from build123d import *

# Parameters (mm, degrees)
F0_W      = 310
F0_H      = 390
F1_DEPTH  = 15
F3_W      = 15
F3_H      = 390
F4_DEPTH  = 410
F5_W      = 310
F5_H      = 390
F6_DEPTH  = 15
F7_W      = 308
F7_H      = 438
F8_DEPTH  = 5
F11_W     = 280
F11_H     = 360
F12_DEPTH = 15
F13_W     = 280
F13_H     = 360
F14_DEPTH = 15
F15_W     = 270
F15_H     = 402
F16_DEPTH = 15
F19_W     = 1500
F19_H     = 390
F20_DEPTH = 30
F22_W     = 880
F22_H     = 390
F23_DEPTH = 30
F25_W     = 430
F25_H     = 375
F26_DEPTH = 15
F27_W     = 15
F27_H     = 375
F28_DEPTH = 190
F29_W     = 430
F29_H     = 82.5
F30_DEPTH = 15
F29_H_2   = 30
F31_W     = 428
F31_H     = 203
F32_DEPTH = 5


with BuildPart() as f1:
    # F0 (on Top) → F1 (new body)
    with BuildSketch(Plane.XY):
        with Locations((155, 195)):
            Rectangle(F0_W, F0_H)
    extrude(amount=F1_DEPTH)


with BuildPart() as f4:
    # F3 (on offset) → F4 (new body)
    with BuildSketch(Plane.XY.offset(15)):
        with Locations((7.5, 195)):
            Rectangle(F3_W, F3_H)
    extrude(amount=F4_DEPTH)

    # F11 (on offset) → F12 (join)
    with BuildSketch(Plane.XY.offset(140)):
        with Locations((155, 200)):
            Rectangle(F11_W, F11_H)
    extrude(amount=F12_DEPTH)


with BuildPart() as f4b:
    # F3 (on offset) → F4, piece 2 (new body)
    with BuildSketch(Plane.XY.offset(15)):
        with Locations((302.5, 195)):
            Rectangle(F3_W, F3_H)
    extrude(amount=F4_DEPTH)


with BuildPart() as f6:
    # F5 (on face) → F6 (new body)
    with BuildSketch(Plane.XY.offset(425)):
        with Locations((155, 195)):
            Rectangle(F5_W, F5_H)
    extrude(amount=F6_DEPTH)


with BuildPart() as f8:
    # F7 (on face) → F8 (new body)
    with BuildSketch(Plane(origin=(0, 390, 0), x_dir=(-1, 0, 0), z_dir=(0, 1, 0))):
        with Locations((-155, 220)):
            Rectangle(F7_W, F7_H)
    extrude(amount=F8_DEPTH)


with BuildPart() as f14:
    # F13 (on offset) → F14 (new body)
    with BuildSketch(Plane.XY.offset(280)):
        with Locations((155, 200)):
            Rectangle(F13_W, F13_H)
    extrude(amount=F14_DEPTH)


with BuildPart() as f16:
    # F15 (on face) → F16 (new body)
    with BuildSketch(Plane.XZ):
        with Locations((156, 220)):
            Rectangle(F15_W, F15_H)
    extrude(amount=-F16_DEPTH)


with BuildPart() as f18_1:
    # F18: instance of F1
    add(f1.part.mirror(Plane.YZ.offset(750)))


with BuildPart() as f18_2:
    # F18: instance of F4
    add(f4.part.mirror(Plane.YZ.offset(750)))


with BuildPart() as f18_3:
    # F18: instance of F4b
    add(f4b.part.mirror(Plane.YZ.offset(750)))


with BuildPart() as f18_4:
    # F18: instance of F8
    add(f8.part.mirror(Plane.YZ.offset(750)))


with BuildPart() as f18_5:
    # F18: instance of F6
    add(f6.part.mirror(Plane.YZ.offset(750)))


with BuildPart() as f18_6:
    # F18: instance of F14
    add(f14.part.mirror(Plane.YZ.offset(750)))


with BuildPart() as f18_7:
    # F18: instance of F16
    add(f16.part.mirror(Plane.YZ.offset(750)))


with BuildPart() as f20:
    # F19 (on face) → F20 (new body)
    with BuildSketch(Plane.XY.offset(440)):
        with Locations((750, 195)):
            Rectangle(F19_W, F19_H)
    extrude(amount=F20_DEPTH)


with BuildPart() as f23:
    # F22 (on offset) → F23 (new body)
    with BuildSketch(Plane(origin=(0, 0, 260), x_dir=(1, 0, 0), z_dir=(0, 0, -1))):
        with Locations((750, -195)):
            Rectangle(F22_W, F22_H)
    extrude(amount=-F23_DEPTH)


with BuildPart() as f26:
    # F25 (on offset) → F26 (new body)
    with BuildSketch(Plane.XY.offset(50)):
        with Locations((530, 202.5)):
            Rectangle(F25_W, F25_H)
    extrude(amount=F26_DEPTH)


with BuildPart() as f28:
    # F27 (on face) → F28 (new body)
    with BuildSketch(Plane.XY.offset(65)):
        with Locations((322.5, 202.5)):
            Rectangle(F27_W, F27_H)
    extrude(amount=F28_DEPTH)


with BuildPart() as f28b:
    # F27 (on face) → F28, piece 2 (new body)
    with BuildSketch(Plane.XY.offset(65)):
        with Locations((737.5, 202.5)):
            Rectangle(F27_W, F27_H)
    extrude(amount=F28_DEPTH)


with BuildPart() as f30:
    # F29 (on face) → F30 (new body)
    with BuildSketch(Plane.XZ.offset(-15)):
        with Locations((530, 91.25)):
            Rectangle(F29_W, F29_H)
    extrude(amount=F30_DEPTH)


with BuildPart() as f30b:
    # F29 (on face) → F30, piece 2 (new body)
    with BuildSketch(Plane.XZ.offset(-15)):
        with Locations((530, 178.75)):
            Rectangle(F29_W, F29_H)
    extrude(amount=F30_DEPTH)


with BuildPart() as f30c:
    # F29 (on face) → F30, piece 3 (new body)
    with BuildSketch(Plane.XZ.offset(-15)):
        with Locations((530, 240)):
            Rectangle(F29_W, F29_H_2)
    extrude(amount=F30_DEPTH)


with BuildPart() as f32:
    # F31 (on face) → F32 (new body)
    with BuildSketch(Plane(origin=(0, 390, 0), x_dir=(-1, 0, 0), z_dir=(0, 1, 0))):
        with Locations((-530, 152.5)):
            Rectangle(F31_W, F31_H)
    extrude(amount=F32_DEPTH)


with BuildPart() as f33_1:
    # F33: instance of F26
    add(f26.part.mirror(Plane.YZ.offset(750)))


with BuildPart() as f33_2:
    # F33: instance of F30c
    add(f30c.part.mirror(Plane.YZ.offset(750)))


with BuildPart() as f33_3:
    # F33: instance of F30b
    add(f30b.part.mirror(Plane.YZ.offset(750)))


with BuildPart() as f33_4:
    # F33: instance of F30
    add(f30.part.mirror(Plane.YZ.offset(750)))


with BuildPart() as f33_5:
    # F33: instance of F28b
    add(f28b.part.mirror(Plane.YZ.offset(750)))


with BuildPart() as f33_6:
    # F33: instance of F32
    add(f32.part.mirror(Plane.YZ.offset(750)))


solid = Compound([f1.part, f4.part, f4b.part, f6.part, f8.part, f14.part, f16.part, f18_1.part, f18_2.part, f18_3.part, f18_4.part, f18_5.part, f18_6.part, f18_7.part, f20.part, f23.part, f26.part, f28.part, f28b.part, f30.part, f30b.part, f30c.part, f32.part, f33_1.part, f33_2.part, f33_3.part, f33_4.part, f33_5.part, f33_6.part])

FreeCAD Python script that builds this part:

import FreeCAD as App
import Part
import Sketcher
from FreeCAD import Vector
Q = App.Units.Quantity

doc = App.newDocument("Part")
body = doc.addObject("PartDesign::Body", "Body")

# Sketch on XY plane
sketch1 = body.newObject("Sketcher::SketchObject", "Sketch")
sketch1.AttachmentSupport = (doc.getObject("XY_Plane"), [""])
sketch1.MapMode = "FlatFace"
sketch1.addGeometry(Part.LineSegment(Vector(0, 390, 0), Vector(0, 0, 0)), False)
sketch1.addGeometry(Part.LineSegment(Vector(0, 0, 0), Vector(310, 0, 0)), False)
sketch1.addGeometry(Part.LineSegment(Vector(310, 0, 0), Vector(310, 390, 0)), False)
sketch1.addGeometry(Part.LineSegment(Vector(310, 390, 0), Vector(0, 390, 0)), False)
sketch1.addConstraint(Sketcher.Constraint("Coincident", 0, 2, 1, 1))
sketch1.addConstraint(Sketcher.Constraint("Coincident", 1, 2, 2, 1))
sketch1.addConstraint(Sketcher.Constraint("Coincident", 2, 2, 3, 1))
sketch1.addConstraint(Sketcher.Constraint("Coincident", 3, 2, 0, 1))
sketch1.addConstraint(Sketcher.Constraint("Vertical", 0))
sketch1.addConstraint(Sketcher.Constraint("Horizontal", 1))
sketch1.addConstraint(Sketcher.Constraint("Vertical", 2))
sketch1.addConstraint(Sketcher.Constraint("Horizontal", 3))
sketch1.addConstraint(Sketcher.Constraint("Coincident", 0, 2, -1, 1))
sketch1.addConstraint(Sketcher.Constraint("DistanceX", 1, 1, 1, 2, Q("310 mm")))
sketch1.addConstraint(Sketcher.Constraint("DistanceY", 0, 2, 0, 1, Q("390 mm")))
pad1 = body.newObject("PartDesign::Pad", "Pad")
pad1.Profile = sketch1
pad1.Length = 15
body2 = doc.addObject("PartDesign::Body", "Body001")

# Sketch on XY plane
sketch2 = body2.newObject("Sketcher::SketchObject", "Sketch001")
sketch2.AttachmentSupport = (doc.getObject("XY_Plane001"), [""])
sketch2.MapMode = "FlatFace"
sketch2.AttachmentOffset = App.Placement(Vector(0, 0, 15), App.Rotation())
sketch2.addGeometry(Part.LineSegment(Vector(0, 390, 0), Vector(0, 0, 0)), False)
sketch2.addGeometry(Part.LineSegment(Vector(0, 0, 0), Vector(15, 0, 0)), False)
sketch2.addGeometry(Part.LineSegment(Vector(15, 0, 0), Vector(15, 390, 0)), False)
sketch2.addGeometry(Part.LineSegment(Vector(15, 390, 0), Vector(0, 390, 0)), False)
sketch2.addConstraint(Sketcher.Constraint("Coincident", 0, 2, 1, 1))
sketch2.addConstraint(Sketcher.Constraint("Coincident", 1, 2, 2, 1))
sketch2.addConstraint(Sketcher.Constraint("Coincident", 2, 2, 3, 1))
sketch2.addConstraint(Sketcher.Constraint("Coincident", 3, 2, 0, 1))
sketch2.addConstraint(Sketcher.Constraint("Vertical", 0))
sketch2.addConstraint(Sketcher.Constraint("Horizontal", 1))
sketch2.addConstraint(Sketcher.Constraint("Vertical", 2))
sketch2.addConstraint(Sketcher.Constraint("Horizontal", 3))
sketch2.addConstraint(Sketcher.Constraint("Coincident", 0, 2, -1, 1))
sketch2.addConstraint(Sketcher.Constraint("DistanceX", 1, 1, 1, 2, Q("15 mm")))
sketch2.addConstraint(Sketcher.Constraint("DistanceY", 0, 2, 0, 1, Q("390 mm")))
pad2 = body2.newObject("PartDesign::Pad", "Pad001")
pad2.Profile = sketch2
pad2.Length = 410

# Sketch on XY plane
sketch3 = body2.newObject("Sketcher::SketchObject", "Sketch002")
sketch3.AttachmentSupport = (doc.getObject("XY_Plane001"), [""])
sketch3.MapMode = "FlatFace"
sketch3.AttachmentOffset = App.Placement(Vector(0, 0, 140), App.Rotation())
sketch3.addGeometry(Part.LineSegment(Vector(15, 380, 0), Vector(15, 20, 0)), False)
sketch3.addGeometry(Part.LineSegment(Vector(15, 20, 0), Vector(295, 20, 0)), False)
sketch3.addGeometry(Part.LineSegment(Vector(295, 20, 0), Vector(295, 380, 0)), False)
sketch3.addGeometry(Part.LineSegment(Vector(295, 380, 0), Vector(15, 380, 0)), False)
sketch3.addConstraint(Sketcher.Constraint("Coincident", 0, 2, 1, 1))
sketch3.addConstraint(Sketcher.Constraint("Coincident", 1, 2, 2, 1))
sketch3.addConstraint(Sketcher.Constraint("Coincident", 2, 2, 3, 1))
sketch3.addConstraint(Sketcher.Constraint("Coincident", 3, 2, 0, 1))
sketch3.addConstraint(Sketcher.Constraint("Vertical", 0))
sketch3.addConstraint(Sketcher.Constraint("Horizontal", 1))
sketch3.addConstraint(Sketcher.Constraint("Vertical", 2))
sketch3.addConstraint(Sketcher.Constraint("Horizontal", 3))
sketch3.addConstraint(Sketcher.Constraint("DistanceX", 1, 1, 1, 2, Q("280 mm")))
sketch3.addConstraint(Sketcher.Constraint("DistanceY", 0, 2, 0, 1, Q("360 mm")))
sketch3.addConstraint(Sketcher.Constraint("DistanceX", -1, 1, 0, 2, Q("15 mm")))
sketch3.addConstraint(Sketcher.Constraint("DistanceY", -1, 1, 0, 2, Q("20 mm")))
pad3 = body2.newObject("PartDesign::Pad", "Pad002")
pad3.Profile = sketch3
pad3.Length = 15
body3 = doc.addObject("PartDesign::Body", "Body002")

# Sketch on XY plane
sketch4 = body3.newObject("Sketcher::SketchObject", "Sketch003")
sketch4.AttachmentSupport = (doc.getObject("XY_Plane002"), [""])
sketch4.MapMode = "FlatFace"
sketch4.AttachmentOffset = App.Placement(Vector(0, 0, 15), App.Rotation())
sketch4.addGeometry(Part.LineSegment(Vector(295, 390, 0), Vector(295, 0, 0)), False)
sketch4.addGeometry(Part.LineSegment(Vector(295, 0, 0), Vector(310, 0, 0)), False)
sketch4.addGeometry(Part.LineSegment(Vector(310, 0, 0), Vector(310, 390, 0)), False)
sketch4.addGeometry(Part.LineSegment(Vector(310, 390, 0), Vector(295, 390, 0)), False)
sketch4.addConstraint(Sketcher.Constraint("Coincident", 0, 2, 1, 1))
sketch4.addConstraint(Sketcher.Constraint("Coincident", 1, 2, 2, 1))
sketch4.addConstraint(Sketcher.Constraint("Coincident", 2, 2, 3, 1))
sketch4.addConstraint(Sketcher.Constraint("Coincident", 3, 2, 0, 1))
sketch4.addConstraint(Sketcher.Constraint("Vertical", 0))
sketch4.addConstraint(Sketcher.Constraint("Horizontal", 1))
sketch4.addConstraint(Sketcher.Constraint("Vertical", 2))
sketch4.addConstraint(Sketcher.Constraint("Horizontal", 3))
sketch4.addConstraint(Sketcher.Constraint("PointOnObject", 0, 2, -1))
sketch4.addConstraint(Sketcher.Constraint("DistanceX", 1, 1, 1, 2, Q("15 mm")))
sketch4.addConstraint(Sketcher.Constraint("DistanceY", 0, 2, 0, 1, Q("390 mm")))
sketch4.addConstraint(Sketcher.Constraint("DistanceX", -1, 1, 0, 2, Q("295 mm")))
pad4 = body3.newObject("PartDesign::Pad", "Pad003")
pad4.Profile = sketch4
pad4.Length = 410
body4 = doc.addObject("PartDesign::Body", "Body003")

# Sketch on XY plane
sketch5 = body4.newObject("Sketcher::SketchObject", "Sketch004")
sketch5.AttachmentSupport = (doc.getObject("XY_Plane003"), [""])
sketch5.MapMode = "FlatFace"
sketch5.AttachmentOffset = App.Placement(Vector(0, 0, 425), App.Rotation())
sketch5.addGeometry(Part.LineSegment(Vector(0, 390, 0), Vector(0, 0, 0)), False)
sketch5.addGeometry(Part.LineSegment(Vector(0, 0, 0), Vector(310, 0, 0)), False)
sketch5.addGeometry(Part.LineSegment(Vector(310, 0, 0), Vector(310, 390, 0)), False)
sketch5.addGeometry(Part.LineSegment(Vector(310, 390, 0), Vector(0, 390, 0)), False)
sketch5.addConstraint(Sketcher.Constraint("Coincident", 0, 2, 1, 1))
sketch5.addConstraint(Sketcher.Constraint("Coincident", 1, 2, 2, 1))
sketch5.addConstraint(Sketcher.Constraint("Coincident", 2, 2, 3, 1))
sketch5.addConstraint(Sketcher.Constraint("Coincident", 3, 2, 0, 1))
sketch5.addConstraint(Sketcher.Constraint("Vertical", 0))
sketch5.addConstraint(Sketcher.Constraint("Horizontal", 1))
sketch5.addConstraint(Sketcher.Constraint("Vertical", 2))
sketch5.addConstraint(Sketcher.Constraint("Horizontal", 3))
sketch5.addConstraint(Sketcher.Constraint("Coincident", 0, 2, -1, 1))
sketch5.addConstraint(Sketcher.Constraint("DistanceX", 1, 1, 1, 2, Q("310 mm")))
sketch5.addConstraint(Sketcher.Constraint("DistanceY", 0, 2, 0, 1, Q("390 mm")))
pad5 = body4.newObject("PartDesign::Pad", "Pad004")
pad5.Profile = sketch5
pad5.Length = 15
body5 = doc.addObject("PartDesign::Body", "Body004")

# Sketch on XZ plane
sketch6 = body5.newObject("Sketcher::SketchObject", "Sketch005")
sketch6.AttachmentSupport = (doc.getObject("XZ_Plane004"), [""])
sketch6.MapMode = "FlatFace"
sketch6.AttachmentOffset = App.Placement(Vector(0, 0, -390), App.Rotation())
sketch6.addGeometry(Part.LineSegment(Vector(309, 439, 0), Vector(309, 1, 0)), False)
sketch6.addGeometry(Part.LineSegment(Vector(309, 1, 0), Vector(1, 1, 0)), False)
sketch6.addGeometry(Part.LineSegment(Vector(1, 1, 0), Vector(1, 439, 0)), False)
sketch6.addGeometry(Part.LineSegment(Vector(1, 439, 0), Vector(309, 439, 0)), False)
sketch6.addConstraint(Sketcher.Constraint("Coincident", 0, 2, 1, 1))
sketch6.addConstraint(Sketcher.Constraint("Coincident", 1, 2, 2, 1))
sketch6.addConstraint(Sketcher.Constraint("Coincident", 2, 2, 3, 1))
sketch6.addConstraint(Sketcher.Constraint("Coincident", 3, 2, 0, 1))
sketch6.addConstraint(Sketcher.Constraint("Vertical", 0))
sketch6.addConstraint(Sketcher.Constraint("Horizontal", 1))
sketch6.addConstraint(Sketcher.Constraint("Vertical", 2))
sketch6.addConstraint(Sketcher.Constraint("Horizontal", 3))
sketch6.addConstraint(Sketcher.Constraint("DistanceX", 1, 2, 1, 1, Q("308 mm")))
sketch6.addConstraint(Sketcher.Constraint("DistanceY", 0, 2, 0, 1, Q("438 mm")))
sketch6.addConstraint(Sketcher.Constraint("DistanceX", -1, 1, 0, 2, Q("309 mm")))
sketch6.addConstraint(Sketcher.Constraint("DistanceY", -1, 1, 0, 2, Q("1 mm")))
pad6 = body5.newObject("PartDesign::Pad", "Pad005")
pad6.Profile = sketch6
pad6.Length = 5
pad6.Reversed = True
body6 = doc.addObject("PartDesign::Body", "Body005")

# Sketch on XY plane
sketch7 = body6.newObject("Sketcher::SketchObject", "Sketch006")
sketch7.AttachmentSupport = (doc.getObject("XY_Plane005"), [""])
sketch7.MapMode = "FlatFace"
sketch7.AttachmentOffset = App.Placement(Vector(0, 0, 280), App.Rotation())
sketch7.addGeometry(Part.LineSegment(Vector(15, 380, 0), Vector(15, 20, 0)), False)
sketch7.addGeometry(Part.LineSegment(Vector(15, 20, 0), Vector(295, 20, 0)), False)
sketch7.addGeometry(Part.LineSegment(Vector(295, 20, 0), Vector(295, 380, 0)), False)
sketch7.addGeometry(Part.LineSegment(Vector(295, 380, 0), Vector(15, 380, 0)), False)
sketch7.addConstraint(Sketcher.Constraint("Coincident", 0, 2, 1, 1))
sketch7.addConstraint(Sketcher.Constraint("Coincident", 1, 2, 2, 1))
sketch7.addConstraint(Sketcher.Constraint("Coincident", 2, 2, 3, 1))
sketch7.addConstraint(Sketcher.Constraint("Coincident", 3, 2, 0, 1))
sketch7.addConstraint(Sketcher.Constraint("Vertical", 0))
sketch7.addConstraint(Sketcher.Constraint("Horizontal", 1))
sketch7.addConstraint(Sketcher.Constraint("Vertical", 2))
sketch7.addConstraint(Sketcher.Constraint("Horizontal", 3))
sketch7.addConstraint(Sketcher.Constraint("DistanceX", 1, 1, 1, 2, Q("280 mm")))
sketch7.addConstraint(Sketcher.Constraint("DistanceY", 0, 2, 0, 1, Q("360 mm")))
sketch7.addConstraint(Sketcher.Constraint("DistanceX", -1, 1, 0, 2, Q("15 mm")))
sketch7.addConstraint(Sketcher.Constraint("DistanceY", -1, 1, 0, 2, Q("20 mm")))
pad7 = body6.newObject("PartDesign::Pad", "Pad006")
pad7.Profile = sketch7
pad7.Length = 15
body7 = doc.addObject("PartDesign::Body", "Body006")

# Sketch on XZ plane
sketch8 = body7.newObject("Sketcher::SketchObject", "Sketch007")
sketch8.AttachmentSupport = (doc.getObject("XZ_Plane006"), [""])
sketch8.MapMode = "FlatFace"
sketch8.addGeometry(Part.LineSegment(Vector(21, 421, 0), Vector(21, 19, 0)), False)
sketch8.addGeometry(Part.LineSegment(Vector(21, 19, 0), Vector(291, 19, 0)), False)
sketch8.addGeometry(Part.LineSegment(Vector(291, 19, 0), Vector(291, 421, 0)), False)
sketch8.addGeometry(Part.LineSegment(Vector(291, 421, 0), Vector(21, 421, 0)), False)
sketch8.addConstraint(Sketcher.Constraint("Coincident", 0, 2, 1, 1))
sketch8.addConstraint(Sketcher.Constraint("Coincident", 1, 2, 2, 1))
sketch8.addConstraint(Sketcher.Constraint("Coincident", 2, 2, 3, 1))
sketch8.addConstraint(Sketcher.Constraint("Coincident", 3, 2, 0, 1))
sketch8.addConstraint(Sketcher.Constraint("Vertical", 0))
sketch8.addConstraint(Sketcher.Constraint("Horizontal", 1))
sketch8.addConstraint(Sketcher.Constraint("Vertical", 2))
sketch8.addConstraint(Sketcher.Constraint("Horizontal", 3))
sketch8.addConstraint(Sketcher.Constraint("DistanceX", 1, 1, 1, 2, Q("270 mm")))
sketch8.addConstraint(Sketcher.Constraint("DistanceY", 0, 2, 0, 1, Q("402 mm")))
sketch8.addConstraint(Sketcher.Constraint("DistanceX", -1, 1, 0, 2, Q("21 mm")))
sketch8.addConstraint(Sketcher.Constraint("DistanceY", -1, 1, 0, 2, Q("19 mm")))
pad8 = body7.newObject("PartDesign::Pad", "Pad007")
pad8.Profile = sketch8
pad8.Length = 15
pad8.Reversed = True
body8 = doc.addObject("PartDesign::Body", "Body007")
doc.recompute()

mirroring = doc.addObject("Part::Mirroring", "Mirroring")
mirroring.Source = body
mirroring.Base = Vector(750, 0, 0)
mirroring.Normal = Vector(1, 0, 0)
body8.BaseFeature = mirroring
doc.recompute()
body9 = doc.addObject("PartDesign::Body", "Body008")
doc.recompute()

mirroring2 = doc.addObject("Part::Mirroring", "Mirroring001")
mirroring2.Source = body2
mirroring2.Base = Vector(750, 0, 0)
mirroring2.Normal = Vector(1, 0, 0)
body9.BaseFeature = mirroring2
doc.recompute()
body10 = doc.addObject("PartDesign::Body", "Body009")
doc.recompute()

mirroring3 = doc.addObject("Part::Mirroring", "Mirroring002")
mirroring3.Source = body3
mirroring3.Base = Vector(750, 0, 0)
mirroring3.Normal = Vector(1, 0, 0)
body10.BaseFeature = mirroring3
doc.recompute()
body11 = doc.addObject("PartDesign::Body", "Body010")
doc.recompute()

mirroring4 = doc.addObject("Part::Mirroring", "Mirroring003")
mirroring4.Source = body5
mirroring4.Base = Vector(750, 0, 0)
mirroring4.Normal = Vector(1, 0, 0)
body11.BaseFeature = mirroring4
doc.recompute()
body12 = doc.addObject("PartDesign::Body", "Body011")
doc.recompute()

mirroring5 = doc.addObject("Part::Mirroring", "Mirroring004")
mirroring5.Source = body4
mirroring5.Base = Vector(750, 0, 0)
mirroring5.Normal = Vector(1, 0, 0)
body12.BaseFeature = mirroring5
doc.recompute()
body13 = doc.addObject("PartDesign::Body", "Body012")
doc.recompute()

mirroring6 = doc.addObject("Part::Mirroring", "Mirroring005")
mirroring6.Source = body6
mirroring6.Base = Vector(750, 0, 0)
mirroring6.Normal = Vector(1, 0, 0)
body13.BaseFeature = mirroring6
doc.recompute()
body14 = doc.addObject("PartDesign::Body", "Body013")
doc.recompute()

mirroring7 = doc.addObject("Part::Mirroring", "Mirroring006")
mirroring7.Source = body7
mirroring7.Base = Vector(750, 0, 0)
mirroring7.Normal = Vector(1, 0, 0)
body14.BaseFeature = mirroring7
doc.recompute()
body15 = doc.addObject("PartDesign::Body", "Body014")

# Sketch on XY plane
sketch9 = body15.newObject("Sketcher::SketchObject", "Sketch008")
sketch9.AttachmentSupport = (doc.getObject("XY_Plane014"), [""])
sketch9.MapMode = "FlatFace"
sketch9.AttachmentOffset = App.Placement(Vector(0, 0, 440), App.Rotation())
sketch9.addGeometry(Part.LineSegment(Vector(0, 390, 0), Vector(0, 0, 0)), False)
sketch9.addGeometry(Part.LineSegment(Vector(0, 0, 0), Vector(1500, 0, 0)), False)
sketch9.addGeometry(Part.LineSegment(Vector(1500, 0, 0), Vector(1500, 390, 0)), False)
sketch9.addGeometry(Part.LineSegment(Vector(1500, 390, 0), Vector(0, 390, 0)), False)
sketch9.addConstraint(Sketcher.Constraint("Coincident", 0, 2, 1, 1))
sketch9.addConstraint(Sketcher.Constraint("Coincident", 1, 2, 2, 1))
sketch9.addConstraint(Sketcher.Constraint("Coincident", 2, 2, 3, 1))
sketch9.addConstraint(Sketcher.Constraint("Coincident", 3, 2, 0, 1))
sketch9.addConstraint(Sketcher.Constraint("Vertical", 0))
sketch9.addConstraint(Sketcher.Constraint("Horizontal", 1))
sketch9.addConstraint(Sketcher.Constraint("Vertical", 2))
sketch9.addConstraint(Sketcher.Constraint("Horizontal", 3))
sketch9.addConstraint(Sketcher.Constraint("Coincident", 0, 2, -1, 1))
sketch9.addConstraint(Sketcher.Constraint("DistanceX", 1, 1, 1, 2, Q("1500 mm")))
sketch9.addConstraint(Sketcher.Constraint("DistanceY", 0, 2, 0, 1, Q("390 mm")))
pad9 = body15.newObject("PartDesign::Pad", "Pad008")
pad9.Profile = sketch9
pad9.Length = 30
body16 = doc.addObject("PartDesign::Body", "Body015")

# Sketch on XY plane
sketch10 = body16.newObject("Sketcher::SketchObject", "Sketch009")
sketch10.AttachmentSupport = (doc.getObject("XY_Plane015"), [""])
sketch10.MapMode = "FlatFace"
sketch10.AttachmentOffset = App.Placement(Vector(0, 0, 260), App.Rotation())
sketch10.addGeometry(Part.LineSegment(Vector(310, 0, 0), Vector(310, 390, 0)), False)
sketch10.addGeometry(Part.LineSegment(Vector(310, 390, 0), Vector(1190, 390, 0)), False)
sketch10.addGeometry(Part.LineSegment(Vector(1190, 390, 0), Vector(1190, 0, 0)), False)
sketch10.addGeometry(Part.LineSegment(Vector(1190, 0, 0), Vector(310, 0, 0)), False)
sketch10.addConstraint(Sketcher.Constraint("Coincident", 0, 2, 1, 1))
sketch10.addConstraint(Sketcher.Constraint("Coincident", 1, 2, 2, 1))
sketch10.addConstraint(Sketcher.Constraint("Coincident", 2, 2, 3, 1))
sketch10.addConstraint(Sketcher.Constraint("Coincident", 3, 2, 0, 1))
sketch10.addConstraint(Sketcher.Constraint("Vertical", 0))
sketch10.addConstraint(Sketcher.Constraint("Horizontal", 1))
sketch10.addConstraint(Sketcher.Constraint("Vertical", 2))
sketch10.addConstraint(Sketcher.Constraint("Horizontal", 3))
sketch10.addConstraint(Sketcher.Constraint("PointOnObject", 2, 2, -1))
sketch10.addConstraint(Sketcher.Constraint("DistanceX", 1, 1, 1, 2, Q("880 mm")))
sketch10.addConstraint(Sketcher.Constraint("DistanceY", 0, 1, 0, 2, Q("390 mm")))
sketch10.addConstraint(Sketcher.Constraint("DistanceX", -1, 1, 0, 2, Q("310 mm")))
pad10 = body16.newObject("PartDesign::Pad", "Pad009")
pad10.Profile = sketch10
pad10.Length = 30
body17 = doc.addObject("PartDesign::Body", "Body016")

# Sketch on XY plane
sketch11 = body17.newObject("Sketcher::SketchObject", "Sketch010")
sketch11.AttachmentSupport = (doc.getObject("XY_Plane016"), [""])
sketch11.MapMode = "FlatFace"
sketch11.AttachmentOffset = App.Placement(Vector(0, 0, 50), App.Rotation())
sketch11.addGeometry(Part.LineSegment(Vector(315, 390, 0), Vector(315, 15, 0)), False)
sketch11.addGeometry(Part.LineSegment(Vector(315, 15, 0), Vector(745, 15, 0)), False)
sketch11.addGeometry(Part.LineSegment(Vector(745, 15, 0), Vector(745, 390, 0)), False)
sketch11.addGeometry(Part.LineSegment(Vector(745, 390, 0), Vector(315, 390, 0)), False)
sketch11.addConstraint(Sketcher.Constraint("Coincident", 0, 2, 1, 1))
sketch11.addConstraint(Sketcher.Constraint("Coincident", 1, 2, 2, 1))
sketch11.addConstraint(Sketcher.Constraint("Coincident", 2, 2, 3, 1))
sketch11.addConstraint(Sketcher.Constraint("Coincident", 3, 2, 0, 1))
sketch11.addConstraint(Sketcher.Constraint("Vertical", 0))
sketch11.addConstraint(Sketcher.Constraint("Horizontal", 1))
sketch11.addConstraint(Sketcher.Constraint("Vertical", 2))
sketch11.addConstraint(Sketcher.Constraint("Horizontal", 3))
sketch11.addConstraint(Sketcher.Constraint("DistanceX", 1, 1, 1, 2, Q("430 mm")))
sketch11.addConstraint(Sketcher.Constraint("DistanceY", 0, 2, 0, 1, Q("375 mm")))
sketch11.addConstraint(Sketcher.Constraint("DistanceX", -1, 1, 0, 2, Q("315 mm")))
sketch11.addConstraint(Sketcher.Constraint("DistanceY", -1, 1, 0, 2, Q("15 mm")))
pad11 = body17.newObject("PartDesign::Pad", "Pad010")
pad11.Profile = sketch11
pad11.Length = 15
body18 = doc.addObject("PartDesign::Body", "Body017")

# Sketch on XY plane
sketch12 = body18.newObject("Sketcher::SketchObject", "Sketch011")
sketch12.AttachmentSupport = (doc.getObject("XY_Plane017"), [""])
sketch12.MapMode = "FlatFace"
sketch12.AttachmentOffset = App.Placement(Vector(0, 0, 65), App.Rotation())
sketch12.addGeometry(Part.LineSegment(Vector(315, 390, 0), Vector(315, 15, 0)), False)
sketch12.addGeometry(Part.LineSegment(Vector(315, 15, 0), Vector(330, 15, 0)), False)
sketch12.addGeometry(Part.LineSegment(Vector(330, 15, 0), Vector(330, 390, 0)), False)
sketch12.addGeometry(Part.LineSegment(Vector(330, 390, 0), Vector(315, 390, 0)), False)
sketch12.addConstraint(Sketcher.Constraint("Coincident", 0, 2, 1, 1))
sketch12.addConstraint(Sketcher.Constraint("Coincident", 1, 2, 2, 1))
sketch12.addConstraint(Sketcher.Constraint("Coincident", 2, 2, 3, 1))
sketch12.addConstraint(Sketcher.Constraint("Coincident", 3, 2, 0, 1))
sketch12.addConstraint(Sketcher.Constraint("Vertical", 0))
sketch12.addConstraint(Sketcher.Constraint("Horizontal", 1))
sketch12.addConstraint(Sketcher.Constraint("Vertical", 2))
sketch12.addConstraint(Sketcher.Constraint("Horizontal", 3))
sketch12.addConstraint(Sketcher.Constraint("DistanceX", 1, 1, 1, 2, Q("15 mm")))
sketch12.addConstraint(Sketcher.Constraint("DistanceY", 0, 2, 0, 1, Q("375 mm")))
sketch12.addConstraint(Sketcher.Constraint("DistanceX", -1, 1, 0, 2, Q("315 mm")))
sketch12.addConstraint(Sketcher.Constraint("DistanceY", -1, 1, 0, 2, Q("15 mm")))
pad12 = body18.newObject("PartDesign::Pad", "Pad011")
pad12.Profile = sketch12
pad12.Length = 190
body19 = doc.addObject("PartDesign::Body", "Body018")

# Sketch on XY plane
sketch13 = body19.newObject("Sketcher::SketchObject", "Sketch012")
sketch13.AttachmentSupport = (doc.getObject("XY_Plane018"), [""])
sketch13.MapMode = "FlatFace"
sketch13.AttachmentOffset = App.Placement(Vector(0, 0, 65), App.Rotation())
sketch13.addGeometry(Part.LineSegment(Vector(730, 390, 0), Vector(730, 15, 0)), False)
sketch13.addGeometry(Part.LineSegment(Vector(730, 15, 0), Vector(745, 15, 0)), False)
sketch13.addGeometry(Part.LineSegment(Vector(745, 15, 0), Vector(745, 390, 0)), False)
sketch13.addGeometry(Part.LineSegment(Vector(745, 390, 0), Vector(730, 390, 0)), False)
sketch13.addConstraint(Sketcher.Constraint("Coincident", 0, 2, 1, 1))
sketch13.addConstraint(Sketcher.Constraint("Coincident", 1, 2, 2, 1))
sketch13.addConstraint(Sketcher.Constraint("Coincident", 2, 2, 3, 1))
sketch13.addConstraint(Sketcher.Constraint("Coincident", 3, 2, 0, 1))
sketch13.addConstraint(Sketcher.Constraint("Vertical", 0))
sketch13.addConstraint(Sketcher.Constraint("Horizontal", 1))
sketch13.addConstraint(Sketcher.Constraint("Vertical", 2))
sketch13.addConstraint(Sketcher.Constraint("Horizontal", 3))
sketch13.addConstraint(Sketcher.Constraint("DistanceX", 1, 1, 1, 2, Q("15 mm")))
sketch13.addConstraint(Sketcher.Constraint("DistanceY", 0, 2, 0, 1, Q("375 mm")))
sketch13.addConstraint(Sketcher.Constraint("DistanceX", -1, 1, 0, 2, Q("730 mm")))
sketch13.addConstraint(Sketcher.Constraint("DistanceY", -1, 1, 0, 2, Q("15 mm")))
pad13 = body19.newObject("PartDesign::Pad", "Pad012")
pad13.Profile = sketch13
pad13.Length = 190
body20 = doc.addObject("PartDesign::Body", "Body019")

# Sketch on XZ plane
sketch14 = body20.newObject("Sketcher::SketchObject", "Sketch013")
sketch14.AttachmentSupport = (doc.getObject("XZ_Plane019"), [""])
sketch14.MapMode = "FlatFace"
sketch14.AttachmentOffset = App.Placement(Vector(0, 0, -15), App.Rotation())
sketch14.addGeometry(Part.LineSegment(Vector(315, 132, 0), Vector(315, 50, 0)), False)
sketch14.addGeometry(Part.LineSegment(Vector(315, 50, 0), Vector(745, 50, 0)), False)
sketch14.addGeometry(Part.LineSegment(Vector(745, 50, 0), Vector(745, 132, 0)), False)
sketch14.addGeometry(Part.LineSegment(Vector(745, 132, 0), Vector(315, 132, 0)), False)
sketch14.addConstraint(Sketcher.Constraint("Coincident", 0, 2, 1, 1))
sketch14.addConstraint(Sketcher.Constraint("Coincident", 1, 2, 2, 1))
sketch14.addConstraint(Sketcher.Constraint("Coincident", 2, 2, 3, 1))
sketch14.addConstraint(Sketcher.Constraint("Coincident", 3, 2, 0, 1))
sketch14.addConstraint(Sketcher.Constraint("Vertical", 0))
sketch14.addConstraint(Sketcher.Constraint("Horizontal", 1))
sketch14.addConstraint(Sketcher.Constraint("Vertical", 2))
sketch14.addConstraint(Sketcher.Constraint("Horizontal", 3))
sketch14.addConstraint(Sketcher.Constraint("DistanceX", 1, 1, 1, 2, Q("430 mm")))
sketch14.addConstraint(Sketcher.Constraint("DistanceY", 0, 2, 0, 1, Q("82.5 mm")))
sketch14.addConstraint(Sketcher.Constraint("DistanceX", -1, 1, 0, 2, Q("315 mm")))
sketch14.addConstraint(Sketcher.Constraint("DistanceY", -1, 1, 0, 2, Q("50 mm")))
pad14 = body20.newObject("PartDesign::Pad", "Pad013")
pad14.Profile = sketch14
pad14.Length = 15
body21 = doc.addObject("PartDesign::Body", "Body020")

# Sketch on XZ plane
sketch15 = body21.newObject("Sketcher::SketchObject", "Sketch014")
sketch15.AttachmentSupport = (doc.getObject("XZ_Plane020"), [""])
sketch15.MapMode = "FlatFace"
sketch15.AttachmentOffset = App.Placement(Vector(0, 0, -15), App.Rotation())
sketch15.addGeometry(Part.LineSegment(Vector(315, 220, 0), Vector(315, 138, 0)), False)
sketch15.addGeometry(Part.LineSegment(Vector(315, 138, 0), Vector(745, 138, 0)), False)
sketch15.addGeometry(Part.LineSegment(Vector(745, 138, 0), Vector(745, 220, 0)), False)
sketch15.addGeometry(Part.LineSegment(Vector(745, 220, 0), Vector(315, 220, 0)), False)
sketch15.addConstraint(Sketcher.Constraint("Coincident", 0, 2, 1, 1))
sketch15.addConstraint(Sketcher.Constraint("Coincident", 1, 2, 2, 1))
sketch15.addConstraint(Sketcher.Constraint("Coincident", 2, 2, 3, 1))
sketch15.addConstraint(Sketcher.Constraint("Coincident", 3, 2, 0, 1))
sketch15.addConstraint(Sketcher.Constraint("Vertical", 0))
sketch15.addConstraint(Sketcher.Constraint("Horizontal", 1))
sketch15.addConstraint(Sketcher.Constraint("Vertical", 2))
sketch15.addConstraint(Sketcher.Constraint("Horizontal", 3))
sketch15.addConstraint(Sketcher.Constraint("DistanceX", 1, 1, 1, 2, Q("430 mm")))
sketch15.addConstraint(Sketcher.Constraint("DistanceY", 0, 2, 0, 1, Q("82.5 mm")))
sketch15.addConstraint(Sketcher.Constraint("DistanceX", -1, 1, 0, 2, Q("315 mm")))
sketch15.addConstraint(Sketcher.Constraint("DistanceY", -1, 1, 2, 2, Q("220 mm")))
pad15 = body21.newObject("PartDesign::Pad", "Pad014")
pad15.Profile = sketch15
pad15.Length = 15
body22 = doc.addObject("PartDesign::Body", "Body021")

# Sketch on XZ plane
sketch16 = body22.newObject("Sketcher::SketchObject", "Sketch015")
sketch16.AttachmentSupport = (doc.getObject("XZ_Plane021"), [""])
sketch16.MapMode = "FlatFace"
sketch16.AttachmentOffset = App.Placement(Vector(0, 0, -15), App.Rotation())
sketch16.addGeometry(Part.LineSegment(Vector(315, 255, 0), Vector(315, 225, 0)), False)
sketch16.addGeometry(Part.LineSegment(Vector(315, 225, 0), Vector(745, 225, 0)), False)
sketch16.addGeometry(Part.LineSegment(Vector(745, 225, 0), Vector(745, 255, 0)), False)
sketch16.addGeometry(Part.LineSegment(Vector(745, 255, 0), Vector(315, 255, 0)), False)
sketch16.addConstraint(Sketcher.Constraint("Coincident", 0, 2, 1, 1))
sketch16.addConstraint(Sketcher.Constraint("Coincident", 1, 2, 2, 1))
sketch16.addConstraint(Sketcher.Constraint("Coincident", 2, 2, 3, 1))
sketch16.addConstraint(Sketcher.Constraint("Coincident", 3, 2, 0, 1))
sketch16.addConstraint(Sketcher.Constraint("Vertical", 0))
sketch16.addConstraint(Sketcher.Constraint("Horizontal", 1))
sketch16.addConstraint(Sketcher.Constraint("Vertical", 2))
sketch16.addConstraint(Sketcher.Constraint("Horizontal", 3))
sketch16.addConstraint(Sketcher.Constraint("DistanceX", 1, 1, 1, 2, Q("430 mm")))
sketch16.addConstraint(Sketcher.Constraint("DistanceY", 0, 2, 0, 1, Q("30 mm")))
sketch16.addConstraint(Sketcher.Constraint("DistanceX", -1, 1, 0, 2, Q("315 mm")))
sketch16.addConstraint(Sketcher.Constraint("DistanceY", -1, 1, 0, 2, Q("225 mm")))
pad16 = body22.newObject("PartDesign::Pad", "Pad015")
pad16.Profile = sketch16
pad16.Length = 15
body23 = doc.addObject("PartDesign::Body", "Body022")

# Sketch on XZ plane
sketch17 = body23.newObject("Sketcher::SketchObject", "Sketch016")
sketch17.AttachmentSupport = (doc.getObject("XZ_Plane022"), [""])
sketch17.MapMode = "FlatFace"
sketch17.AttachmentOffset = App.Placement(Vector(0, 0, -390), App.Rotation())
sketch17.addGeometry(Part.LineSegment(Vector(744, 254, 0), Vector(744, 51, 0)), False)
sketch17.addGeometry(Part.LineSegment(Vector(744, 51, 0), Vector(316, 51, 0)), False)
sketch17.addGeometry(Part.LineSegment(Vector(316, 51, 0), Vector(316, 254, 0)), False)
sketch17.addGeometry(Part.LineSegment(Vector(316, 254, 0), Vector(744, 254, 0)), False)
sketch17.addConstraint(Sketcher.Constraint("Coincident", 0, 2, 1, 1))
sketch17.addConstraint(Sketcher.Constraint("Coincident", 1, 2, 2, 1))
sketch17.addConstraint(Sketcher.Constraint("Coincident", 2, 2, 3, 1))
sketch17.addConstraint(Sketcher.Constraint("Coincident", 3, 2, 0, 1))
sketch17.addConstraint(Sketcher.Constraint("Vertical", 0))
sketch17.addConstraint(Sketcher.Constraint("Horizontal", 1))
sketch17.addConstraint(Sketcher.Constraint("Vertical", 2))
sketch17.addConstraint(Sketcher.Constraint("Horizontal", 3))
sketch17.addConstraint(Sketcher.Constraint("DistanceX", 1, 2, 1, 1, Q("428 mm")))
sketch17.addConstraint(Sketcher.Constraint("DistanceY", 0, 2, 0, 1, Q("203 mm")))
sketch17.addConstraint(Sketcher.Constraint("DistanceX", -1, 1, 0, 2, Q("744 mm")))
sketch17.addConstraint(Sketcher.Constraint("DistanceY", -1, 1, 0, 2, Q("51 mm")))
pad17 = body23.newObject("PartDesign::Pad", "Pad016")
pad17.Profile = sketch17
pad17.Length = 5
pad17.Reversed = True
body24 = doc.addObject("PartDesign::Body", "Body023")
doc.recompute()

mirroring8 = doc.addObject("Part::Mirroring", "Mirroring007")
mirroring8.Source = body17
mirroring8.Base = Vector(750, 0, 0)
mirroring8.Normal = Vector(1, 0, 0)
body24.BaseFeature = mirroring8
doc.recompute()
body25 = doc.addObject("PartDesign::Body", "Body024")
doc.recompute()

mirroring9 = doc.addObject("Part::Mirroring", "Mirroring008")
mirroring9.Source = body22
mirroring9.Base = Vector(750, 0, 0)
mirroring9.Normal = Vector(1, 0, 0)
body25.BaseFeature = mirroring9
doc.recompute()
body26 = doc.addObject("PartDesign::Body", "Body025")
doc.recompute()

mirroring10 = doc.addObject("Part::Mirroring", "Mirroring009")
mirroring10.Source = body21
mirroring10.Base = Vector(750, 0, 0)
mirroring10.Normal = Vector(1, 0, 0)
body26.BaseFeature = mirroring10
doc.recompute()
body27 = doc.addObject("PartDesign::Body", "Body026")
doc.recompute()

mirroring11 = doc.addObject("Part::Mirroring", "Mirroring010")
mirroring11.Source = body20
mirroring11.Base = Vector(750, 0, 0)
mirroring11.Normal = Vector(1, 0, 0)
body27.BaseFeature = mirroring11
doc.recompute()
body28 = doc.addObject("PartDesign::Body", "Body027")
doc.recompute()

mirroring12 = doc.addObject("Part::Mirroring", "Mirroring011")
mirroring12.Source = body19
mirroring12.Base = Vector(750, 0, 0)
mirroring12.Normal = Vector(1, 0, 0)
body28.BaseFeature = mirroring12
doc.recompute()
body29 = doc.addObject("PartDesign::Body", "Body028")
doc.recompute()

mirroring13 = doc.addObject("Part::Mirroring", "Mirroring012")
mirroring13.Source = body23
mirroring13.Base = Vector(750, 0, 0)
mirroring13.Normal = Vector(1, 0, 0)
body29.BaseFeature = mirroring13
doc.recompute()

doc.recompute()
